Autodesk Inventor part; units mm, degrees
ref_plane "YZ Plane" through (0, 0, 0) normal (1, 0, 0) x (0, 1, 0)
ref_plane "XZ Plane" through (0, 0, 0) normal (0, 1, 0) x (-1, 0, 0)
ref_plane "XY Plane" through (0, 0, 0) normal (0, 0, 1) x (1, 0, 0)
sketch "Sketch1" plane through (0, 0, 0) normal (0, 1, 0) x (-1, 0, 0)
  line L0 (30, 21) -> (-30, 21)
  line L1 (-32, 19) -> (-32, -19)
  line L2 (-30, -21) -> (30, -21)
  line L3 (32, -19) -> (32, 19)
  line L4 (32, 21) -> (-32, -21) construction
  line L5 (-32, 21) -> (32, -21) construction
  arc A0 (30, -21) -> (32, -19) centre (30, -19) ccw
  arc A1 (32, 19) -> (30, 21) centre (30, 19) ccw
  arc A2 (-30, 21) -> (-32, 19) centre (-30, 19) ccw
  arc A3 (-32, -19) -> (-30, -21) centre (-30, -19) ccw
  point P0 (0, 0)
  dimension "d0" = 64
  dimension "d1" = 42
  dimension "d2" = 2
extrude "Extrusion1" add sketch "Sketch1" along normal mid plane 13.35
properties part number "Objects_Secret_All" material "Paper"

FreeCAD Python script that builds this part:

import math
import FreeCAD as App
import Part
import Sketcher

V = App.Vector

doc = App.newDocument("Part")
body = doc.addObject("PartDesign::Body", "Body")

# Sketch on XZ plane
sketch1 = doc.addObject("Sketcher::SketchObject", "Sketch")
body.addObject(sketch1)
sketch1.AttachmentSupport = (doc.XZ_Plane, [""])
sketch1.MapMode = "FlatFace"
sketch1.addGeometry(Part.ArcOfCircle(Part.Circle(V(-30, 19, 0), V(0, 0, 1), 2), math.radians(90), math.radians(180)), False)
sketch1.addGeometry(Part.LineSegment(V(-30, 21, 0), V(30, 21, 0)), False)
sketch1.addGeometry(Part.ArcOfCircle(Part.Circle(V(30, 19, 0), V(0, 0, 1), 2), math.radians(0), math.radians(90)), False)
sketch1.addGeometry(Part.LineSegment(V(32, 19, 0), V(32, -19, 0)), False)
sketch1.addGeometry(Part.ArcOfCircle(Part.Circle(V(30, -19, 0), V(0, 0, 1), 2), math.radians(-90), math.radians(0)), False)
sketch1.addGeometry(Part.LineSegment(V(30, -21, 0), V(-30, -21, 0)), False)
sketch1.addGeometry(Part.ArcOfCircle(Part.Circle(V(-30, -19, 0), V(0, 0, 1), 2), math.radians(180), math.radians(270)), False)
sketch1.addGeometry(Part.LineSegment(V(-32, -19, 0), V(-32, 19, 0)), False)
sketch1.addConstraint(Sketcher.Constraint("Tangent", 0, 1, 1, 1))
sketch1.addConstraint(Sketcher.Constraint("Tangent", 1, 2, 2, 2))
sketch1.addConstraint(Sketcher.Constraint("Tangent", 2, 1, 3, 1))
sketch1.addConstraint(Sketcher.Constraint("Tangent", 3, 2, 4, 2))
sketch1.addConstraint(Sketcher.Constraint("Tangent", 4, 1, 5, 1))
sketch1.addConstraint(Sketcher.Constraint("Tangent", 5, 2, 6, 2))
sketch1.addConstraint(Sketcher.Constraint("Tangent", 6, 1, 7, 1))
sketch1.addConstraint(Sketcher.Constraint("Tangent", 7, 2, 0, 2))
sketch1.addConstraint(Sketcher.Constraint("Horizontal", 1))
sketch1.addConstraint(Sketcher.Constraint("Vertical", 3))
sketch1.addConstraint(Sketcher.Constraint("Horizontal", 5))
sketch1.addConstraint(Sketcher.Constraint("Vertical", 7))
sketch1.addConstraint(Sketcher.Constraint("Equal", 0, 2))
sketch1.addConstraint(Sketcher.Constraint("Equal", 2, 4))
sketch1.addConstraint(Sketcher.Constraint("Equal", 4, 6))
sketch1.addConstraint(Sketcher.Constraint("Symmetric", 0, 3, 4, 3, -1, 1))
sketch1.addConstraint(Sketcher.Constraint("Radius", 0, 2.0))
sketch1.addConstraint(Sketcher.Constraint("DistanceY", 4, 1, 1, 2, 42.0))
sketch1.addConstraint(Sketcher.Constraint("DistanceX", 1, 1, 1, 2, 60.0))
pad1 = doc.addObject("PartDesign::Pad", "Pad")
body.addObject(pad1)
pad1.Profile = sketch1
pad1.Length = 13.35
pad1.Midplane = True

doc.recompute()
